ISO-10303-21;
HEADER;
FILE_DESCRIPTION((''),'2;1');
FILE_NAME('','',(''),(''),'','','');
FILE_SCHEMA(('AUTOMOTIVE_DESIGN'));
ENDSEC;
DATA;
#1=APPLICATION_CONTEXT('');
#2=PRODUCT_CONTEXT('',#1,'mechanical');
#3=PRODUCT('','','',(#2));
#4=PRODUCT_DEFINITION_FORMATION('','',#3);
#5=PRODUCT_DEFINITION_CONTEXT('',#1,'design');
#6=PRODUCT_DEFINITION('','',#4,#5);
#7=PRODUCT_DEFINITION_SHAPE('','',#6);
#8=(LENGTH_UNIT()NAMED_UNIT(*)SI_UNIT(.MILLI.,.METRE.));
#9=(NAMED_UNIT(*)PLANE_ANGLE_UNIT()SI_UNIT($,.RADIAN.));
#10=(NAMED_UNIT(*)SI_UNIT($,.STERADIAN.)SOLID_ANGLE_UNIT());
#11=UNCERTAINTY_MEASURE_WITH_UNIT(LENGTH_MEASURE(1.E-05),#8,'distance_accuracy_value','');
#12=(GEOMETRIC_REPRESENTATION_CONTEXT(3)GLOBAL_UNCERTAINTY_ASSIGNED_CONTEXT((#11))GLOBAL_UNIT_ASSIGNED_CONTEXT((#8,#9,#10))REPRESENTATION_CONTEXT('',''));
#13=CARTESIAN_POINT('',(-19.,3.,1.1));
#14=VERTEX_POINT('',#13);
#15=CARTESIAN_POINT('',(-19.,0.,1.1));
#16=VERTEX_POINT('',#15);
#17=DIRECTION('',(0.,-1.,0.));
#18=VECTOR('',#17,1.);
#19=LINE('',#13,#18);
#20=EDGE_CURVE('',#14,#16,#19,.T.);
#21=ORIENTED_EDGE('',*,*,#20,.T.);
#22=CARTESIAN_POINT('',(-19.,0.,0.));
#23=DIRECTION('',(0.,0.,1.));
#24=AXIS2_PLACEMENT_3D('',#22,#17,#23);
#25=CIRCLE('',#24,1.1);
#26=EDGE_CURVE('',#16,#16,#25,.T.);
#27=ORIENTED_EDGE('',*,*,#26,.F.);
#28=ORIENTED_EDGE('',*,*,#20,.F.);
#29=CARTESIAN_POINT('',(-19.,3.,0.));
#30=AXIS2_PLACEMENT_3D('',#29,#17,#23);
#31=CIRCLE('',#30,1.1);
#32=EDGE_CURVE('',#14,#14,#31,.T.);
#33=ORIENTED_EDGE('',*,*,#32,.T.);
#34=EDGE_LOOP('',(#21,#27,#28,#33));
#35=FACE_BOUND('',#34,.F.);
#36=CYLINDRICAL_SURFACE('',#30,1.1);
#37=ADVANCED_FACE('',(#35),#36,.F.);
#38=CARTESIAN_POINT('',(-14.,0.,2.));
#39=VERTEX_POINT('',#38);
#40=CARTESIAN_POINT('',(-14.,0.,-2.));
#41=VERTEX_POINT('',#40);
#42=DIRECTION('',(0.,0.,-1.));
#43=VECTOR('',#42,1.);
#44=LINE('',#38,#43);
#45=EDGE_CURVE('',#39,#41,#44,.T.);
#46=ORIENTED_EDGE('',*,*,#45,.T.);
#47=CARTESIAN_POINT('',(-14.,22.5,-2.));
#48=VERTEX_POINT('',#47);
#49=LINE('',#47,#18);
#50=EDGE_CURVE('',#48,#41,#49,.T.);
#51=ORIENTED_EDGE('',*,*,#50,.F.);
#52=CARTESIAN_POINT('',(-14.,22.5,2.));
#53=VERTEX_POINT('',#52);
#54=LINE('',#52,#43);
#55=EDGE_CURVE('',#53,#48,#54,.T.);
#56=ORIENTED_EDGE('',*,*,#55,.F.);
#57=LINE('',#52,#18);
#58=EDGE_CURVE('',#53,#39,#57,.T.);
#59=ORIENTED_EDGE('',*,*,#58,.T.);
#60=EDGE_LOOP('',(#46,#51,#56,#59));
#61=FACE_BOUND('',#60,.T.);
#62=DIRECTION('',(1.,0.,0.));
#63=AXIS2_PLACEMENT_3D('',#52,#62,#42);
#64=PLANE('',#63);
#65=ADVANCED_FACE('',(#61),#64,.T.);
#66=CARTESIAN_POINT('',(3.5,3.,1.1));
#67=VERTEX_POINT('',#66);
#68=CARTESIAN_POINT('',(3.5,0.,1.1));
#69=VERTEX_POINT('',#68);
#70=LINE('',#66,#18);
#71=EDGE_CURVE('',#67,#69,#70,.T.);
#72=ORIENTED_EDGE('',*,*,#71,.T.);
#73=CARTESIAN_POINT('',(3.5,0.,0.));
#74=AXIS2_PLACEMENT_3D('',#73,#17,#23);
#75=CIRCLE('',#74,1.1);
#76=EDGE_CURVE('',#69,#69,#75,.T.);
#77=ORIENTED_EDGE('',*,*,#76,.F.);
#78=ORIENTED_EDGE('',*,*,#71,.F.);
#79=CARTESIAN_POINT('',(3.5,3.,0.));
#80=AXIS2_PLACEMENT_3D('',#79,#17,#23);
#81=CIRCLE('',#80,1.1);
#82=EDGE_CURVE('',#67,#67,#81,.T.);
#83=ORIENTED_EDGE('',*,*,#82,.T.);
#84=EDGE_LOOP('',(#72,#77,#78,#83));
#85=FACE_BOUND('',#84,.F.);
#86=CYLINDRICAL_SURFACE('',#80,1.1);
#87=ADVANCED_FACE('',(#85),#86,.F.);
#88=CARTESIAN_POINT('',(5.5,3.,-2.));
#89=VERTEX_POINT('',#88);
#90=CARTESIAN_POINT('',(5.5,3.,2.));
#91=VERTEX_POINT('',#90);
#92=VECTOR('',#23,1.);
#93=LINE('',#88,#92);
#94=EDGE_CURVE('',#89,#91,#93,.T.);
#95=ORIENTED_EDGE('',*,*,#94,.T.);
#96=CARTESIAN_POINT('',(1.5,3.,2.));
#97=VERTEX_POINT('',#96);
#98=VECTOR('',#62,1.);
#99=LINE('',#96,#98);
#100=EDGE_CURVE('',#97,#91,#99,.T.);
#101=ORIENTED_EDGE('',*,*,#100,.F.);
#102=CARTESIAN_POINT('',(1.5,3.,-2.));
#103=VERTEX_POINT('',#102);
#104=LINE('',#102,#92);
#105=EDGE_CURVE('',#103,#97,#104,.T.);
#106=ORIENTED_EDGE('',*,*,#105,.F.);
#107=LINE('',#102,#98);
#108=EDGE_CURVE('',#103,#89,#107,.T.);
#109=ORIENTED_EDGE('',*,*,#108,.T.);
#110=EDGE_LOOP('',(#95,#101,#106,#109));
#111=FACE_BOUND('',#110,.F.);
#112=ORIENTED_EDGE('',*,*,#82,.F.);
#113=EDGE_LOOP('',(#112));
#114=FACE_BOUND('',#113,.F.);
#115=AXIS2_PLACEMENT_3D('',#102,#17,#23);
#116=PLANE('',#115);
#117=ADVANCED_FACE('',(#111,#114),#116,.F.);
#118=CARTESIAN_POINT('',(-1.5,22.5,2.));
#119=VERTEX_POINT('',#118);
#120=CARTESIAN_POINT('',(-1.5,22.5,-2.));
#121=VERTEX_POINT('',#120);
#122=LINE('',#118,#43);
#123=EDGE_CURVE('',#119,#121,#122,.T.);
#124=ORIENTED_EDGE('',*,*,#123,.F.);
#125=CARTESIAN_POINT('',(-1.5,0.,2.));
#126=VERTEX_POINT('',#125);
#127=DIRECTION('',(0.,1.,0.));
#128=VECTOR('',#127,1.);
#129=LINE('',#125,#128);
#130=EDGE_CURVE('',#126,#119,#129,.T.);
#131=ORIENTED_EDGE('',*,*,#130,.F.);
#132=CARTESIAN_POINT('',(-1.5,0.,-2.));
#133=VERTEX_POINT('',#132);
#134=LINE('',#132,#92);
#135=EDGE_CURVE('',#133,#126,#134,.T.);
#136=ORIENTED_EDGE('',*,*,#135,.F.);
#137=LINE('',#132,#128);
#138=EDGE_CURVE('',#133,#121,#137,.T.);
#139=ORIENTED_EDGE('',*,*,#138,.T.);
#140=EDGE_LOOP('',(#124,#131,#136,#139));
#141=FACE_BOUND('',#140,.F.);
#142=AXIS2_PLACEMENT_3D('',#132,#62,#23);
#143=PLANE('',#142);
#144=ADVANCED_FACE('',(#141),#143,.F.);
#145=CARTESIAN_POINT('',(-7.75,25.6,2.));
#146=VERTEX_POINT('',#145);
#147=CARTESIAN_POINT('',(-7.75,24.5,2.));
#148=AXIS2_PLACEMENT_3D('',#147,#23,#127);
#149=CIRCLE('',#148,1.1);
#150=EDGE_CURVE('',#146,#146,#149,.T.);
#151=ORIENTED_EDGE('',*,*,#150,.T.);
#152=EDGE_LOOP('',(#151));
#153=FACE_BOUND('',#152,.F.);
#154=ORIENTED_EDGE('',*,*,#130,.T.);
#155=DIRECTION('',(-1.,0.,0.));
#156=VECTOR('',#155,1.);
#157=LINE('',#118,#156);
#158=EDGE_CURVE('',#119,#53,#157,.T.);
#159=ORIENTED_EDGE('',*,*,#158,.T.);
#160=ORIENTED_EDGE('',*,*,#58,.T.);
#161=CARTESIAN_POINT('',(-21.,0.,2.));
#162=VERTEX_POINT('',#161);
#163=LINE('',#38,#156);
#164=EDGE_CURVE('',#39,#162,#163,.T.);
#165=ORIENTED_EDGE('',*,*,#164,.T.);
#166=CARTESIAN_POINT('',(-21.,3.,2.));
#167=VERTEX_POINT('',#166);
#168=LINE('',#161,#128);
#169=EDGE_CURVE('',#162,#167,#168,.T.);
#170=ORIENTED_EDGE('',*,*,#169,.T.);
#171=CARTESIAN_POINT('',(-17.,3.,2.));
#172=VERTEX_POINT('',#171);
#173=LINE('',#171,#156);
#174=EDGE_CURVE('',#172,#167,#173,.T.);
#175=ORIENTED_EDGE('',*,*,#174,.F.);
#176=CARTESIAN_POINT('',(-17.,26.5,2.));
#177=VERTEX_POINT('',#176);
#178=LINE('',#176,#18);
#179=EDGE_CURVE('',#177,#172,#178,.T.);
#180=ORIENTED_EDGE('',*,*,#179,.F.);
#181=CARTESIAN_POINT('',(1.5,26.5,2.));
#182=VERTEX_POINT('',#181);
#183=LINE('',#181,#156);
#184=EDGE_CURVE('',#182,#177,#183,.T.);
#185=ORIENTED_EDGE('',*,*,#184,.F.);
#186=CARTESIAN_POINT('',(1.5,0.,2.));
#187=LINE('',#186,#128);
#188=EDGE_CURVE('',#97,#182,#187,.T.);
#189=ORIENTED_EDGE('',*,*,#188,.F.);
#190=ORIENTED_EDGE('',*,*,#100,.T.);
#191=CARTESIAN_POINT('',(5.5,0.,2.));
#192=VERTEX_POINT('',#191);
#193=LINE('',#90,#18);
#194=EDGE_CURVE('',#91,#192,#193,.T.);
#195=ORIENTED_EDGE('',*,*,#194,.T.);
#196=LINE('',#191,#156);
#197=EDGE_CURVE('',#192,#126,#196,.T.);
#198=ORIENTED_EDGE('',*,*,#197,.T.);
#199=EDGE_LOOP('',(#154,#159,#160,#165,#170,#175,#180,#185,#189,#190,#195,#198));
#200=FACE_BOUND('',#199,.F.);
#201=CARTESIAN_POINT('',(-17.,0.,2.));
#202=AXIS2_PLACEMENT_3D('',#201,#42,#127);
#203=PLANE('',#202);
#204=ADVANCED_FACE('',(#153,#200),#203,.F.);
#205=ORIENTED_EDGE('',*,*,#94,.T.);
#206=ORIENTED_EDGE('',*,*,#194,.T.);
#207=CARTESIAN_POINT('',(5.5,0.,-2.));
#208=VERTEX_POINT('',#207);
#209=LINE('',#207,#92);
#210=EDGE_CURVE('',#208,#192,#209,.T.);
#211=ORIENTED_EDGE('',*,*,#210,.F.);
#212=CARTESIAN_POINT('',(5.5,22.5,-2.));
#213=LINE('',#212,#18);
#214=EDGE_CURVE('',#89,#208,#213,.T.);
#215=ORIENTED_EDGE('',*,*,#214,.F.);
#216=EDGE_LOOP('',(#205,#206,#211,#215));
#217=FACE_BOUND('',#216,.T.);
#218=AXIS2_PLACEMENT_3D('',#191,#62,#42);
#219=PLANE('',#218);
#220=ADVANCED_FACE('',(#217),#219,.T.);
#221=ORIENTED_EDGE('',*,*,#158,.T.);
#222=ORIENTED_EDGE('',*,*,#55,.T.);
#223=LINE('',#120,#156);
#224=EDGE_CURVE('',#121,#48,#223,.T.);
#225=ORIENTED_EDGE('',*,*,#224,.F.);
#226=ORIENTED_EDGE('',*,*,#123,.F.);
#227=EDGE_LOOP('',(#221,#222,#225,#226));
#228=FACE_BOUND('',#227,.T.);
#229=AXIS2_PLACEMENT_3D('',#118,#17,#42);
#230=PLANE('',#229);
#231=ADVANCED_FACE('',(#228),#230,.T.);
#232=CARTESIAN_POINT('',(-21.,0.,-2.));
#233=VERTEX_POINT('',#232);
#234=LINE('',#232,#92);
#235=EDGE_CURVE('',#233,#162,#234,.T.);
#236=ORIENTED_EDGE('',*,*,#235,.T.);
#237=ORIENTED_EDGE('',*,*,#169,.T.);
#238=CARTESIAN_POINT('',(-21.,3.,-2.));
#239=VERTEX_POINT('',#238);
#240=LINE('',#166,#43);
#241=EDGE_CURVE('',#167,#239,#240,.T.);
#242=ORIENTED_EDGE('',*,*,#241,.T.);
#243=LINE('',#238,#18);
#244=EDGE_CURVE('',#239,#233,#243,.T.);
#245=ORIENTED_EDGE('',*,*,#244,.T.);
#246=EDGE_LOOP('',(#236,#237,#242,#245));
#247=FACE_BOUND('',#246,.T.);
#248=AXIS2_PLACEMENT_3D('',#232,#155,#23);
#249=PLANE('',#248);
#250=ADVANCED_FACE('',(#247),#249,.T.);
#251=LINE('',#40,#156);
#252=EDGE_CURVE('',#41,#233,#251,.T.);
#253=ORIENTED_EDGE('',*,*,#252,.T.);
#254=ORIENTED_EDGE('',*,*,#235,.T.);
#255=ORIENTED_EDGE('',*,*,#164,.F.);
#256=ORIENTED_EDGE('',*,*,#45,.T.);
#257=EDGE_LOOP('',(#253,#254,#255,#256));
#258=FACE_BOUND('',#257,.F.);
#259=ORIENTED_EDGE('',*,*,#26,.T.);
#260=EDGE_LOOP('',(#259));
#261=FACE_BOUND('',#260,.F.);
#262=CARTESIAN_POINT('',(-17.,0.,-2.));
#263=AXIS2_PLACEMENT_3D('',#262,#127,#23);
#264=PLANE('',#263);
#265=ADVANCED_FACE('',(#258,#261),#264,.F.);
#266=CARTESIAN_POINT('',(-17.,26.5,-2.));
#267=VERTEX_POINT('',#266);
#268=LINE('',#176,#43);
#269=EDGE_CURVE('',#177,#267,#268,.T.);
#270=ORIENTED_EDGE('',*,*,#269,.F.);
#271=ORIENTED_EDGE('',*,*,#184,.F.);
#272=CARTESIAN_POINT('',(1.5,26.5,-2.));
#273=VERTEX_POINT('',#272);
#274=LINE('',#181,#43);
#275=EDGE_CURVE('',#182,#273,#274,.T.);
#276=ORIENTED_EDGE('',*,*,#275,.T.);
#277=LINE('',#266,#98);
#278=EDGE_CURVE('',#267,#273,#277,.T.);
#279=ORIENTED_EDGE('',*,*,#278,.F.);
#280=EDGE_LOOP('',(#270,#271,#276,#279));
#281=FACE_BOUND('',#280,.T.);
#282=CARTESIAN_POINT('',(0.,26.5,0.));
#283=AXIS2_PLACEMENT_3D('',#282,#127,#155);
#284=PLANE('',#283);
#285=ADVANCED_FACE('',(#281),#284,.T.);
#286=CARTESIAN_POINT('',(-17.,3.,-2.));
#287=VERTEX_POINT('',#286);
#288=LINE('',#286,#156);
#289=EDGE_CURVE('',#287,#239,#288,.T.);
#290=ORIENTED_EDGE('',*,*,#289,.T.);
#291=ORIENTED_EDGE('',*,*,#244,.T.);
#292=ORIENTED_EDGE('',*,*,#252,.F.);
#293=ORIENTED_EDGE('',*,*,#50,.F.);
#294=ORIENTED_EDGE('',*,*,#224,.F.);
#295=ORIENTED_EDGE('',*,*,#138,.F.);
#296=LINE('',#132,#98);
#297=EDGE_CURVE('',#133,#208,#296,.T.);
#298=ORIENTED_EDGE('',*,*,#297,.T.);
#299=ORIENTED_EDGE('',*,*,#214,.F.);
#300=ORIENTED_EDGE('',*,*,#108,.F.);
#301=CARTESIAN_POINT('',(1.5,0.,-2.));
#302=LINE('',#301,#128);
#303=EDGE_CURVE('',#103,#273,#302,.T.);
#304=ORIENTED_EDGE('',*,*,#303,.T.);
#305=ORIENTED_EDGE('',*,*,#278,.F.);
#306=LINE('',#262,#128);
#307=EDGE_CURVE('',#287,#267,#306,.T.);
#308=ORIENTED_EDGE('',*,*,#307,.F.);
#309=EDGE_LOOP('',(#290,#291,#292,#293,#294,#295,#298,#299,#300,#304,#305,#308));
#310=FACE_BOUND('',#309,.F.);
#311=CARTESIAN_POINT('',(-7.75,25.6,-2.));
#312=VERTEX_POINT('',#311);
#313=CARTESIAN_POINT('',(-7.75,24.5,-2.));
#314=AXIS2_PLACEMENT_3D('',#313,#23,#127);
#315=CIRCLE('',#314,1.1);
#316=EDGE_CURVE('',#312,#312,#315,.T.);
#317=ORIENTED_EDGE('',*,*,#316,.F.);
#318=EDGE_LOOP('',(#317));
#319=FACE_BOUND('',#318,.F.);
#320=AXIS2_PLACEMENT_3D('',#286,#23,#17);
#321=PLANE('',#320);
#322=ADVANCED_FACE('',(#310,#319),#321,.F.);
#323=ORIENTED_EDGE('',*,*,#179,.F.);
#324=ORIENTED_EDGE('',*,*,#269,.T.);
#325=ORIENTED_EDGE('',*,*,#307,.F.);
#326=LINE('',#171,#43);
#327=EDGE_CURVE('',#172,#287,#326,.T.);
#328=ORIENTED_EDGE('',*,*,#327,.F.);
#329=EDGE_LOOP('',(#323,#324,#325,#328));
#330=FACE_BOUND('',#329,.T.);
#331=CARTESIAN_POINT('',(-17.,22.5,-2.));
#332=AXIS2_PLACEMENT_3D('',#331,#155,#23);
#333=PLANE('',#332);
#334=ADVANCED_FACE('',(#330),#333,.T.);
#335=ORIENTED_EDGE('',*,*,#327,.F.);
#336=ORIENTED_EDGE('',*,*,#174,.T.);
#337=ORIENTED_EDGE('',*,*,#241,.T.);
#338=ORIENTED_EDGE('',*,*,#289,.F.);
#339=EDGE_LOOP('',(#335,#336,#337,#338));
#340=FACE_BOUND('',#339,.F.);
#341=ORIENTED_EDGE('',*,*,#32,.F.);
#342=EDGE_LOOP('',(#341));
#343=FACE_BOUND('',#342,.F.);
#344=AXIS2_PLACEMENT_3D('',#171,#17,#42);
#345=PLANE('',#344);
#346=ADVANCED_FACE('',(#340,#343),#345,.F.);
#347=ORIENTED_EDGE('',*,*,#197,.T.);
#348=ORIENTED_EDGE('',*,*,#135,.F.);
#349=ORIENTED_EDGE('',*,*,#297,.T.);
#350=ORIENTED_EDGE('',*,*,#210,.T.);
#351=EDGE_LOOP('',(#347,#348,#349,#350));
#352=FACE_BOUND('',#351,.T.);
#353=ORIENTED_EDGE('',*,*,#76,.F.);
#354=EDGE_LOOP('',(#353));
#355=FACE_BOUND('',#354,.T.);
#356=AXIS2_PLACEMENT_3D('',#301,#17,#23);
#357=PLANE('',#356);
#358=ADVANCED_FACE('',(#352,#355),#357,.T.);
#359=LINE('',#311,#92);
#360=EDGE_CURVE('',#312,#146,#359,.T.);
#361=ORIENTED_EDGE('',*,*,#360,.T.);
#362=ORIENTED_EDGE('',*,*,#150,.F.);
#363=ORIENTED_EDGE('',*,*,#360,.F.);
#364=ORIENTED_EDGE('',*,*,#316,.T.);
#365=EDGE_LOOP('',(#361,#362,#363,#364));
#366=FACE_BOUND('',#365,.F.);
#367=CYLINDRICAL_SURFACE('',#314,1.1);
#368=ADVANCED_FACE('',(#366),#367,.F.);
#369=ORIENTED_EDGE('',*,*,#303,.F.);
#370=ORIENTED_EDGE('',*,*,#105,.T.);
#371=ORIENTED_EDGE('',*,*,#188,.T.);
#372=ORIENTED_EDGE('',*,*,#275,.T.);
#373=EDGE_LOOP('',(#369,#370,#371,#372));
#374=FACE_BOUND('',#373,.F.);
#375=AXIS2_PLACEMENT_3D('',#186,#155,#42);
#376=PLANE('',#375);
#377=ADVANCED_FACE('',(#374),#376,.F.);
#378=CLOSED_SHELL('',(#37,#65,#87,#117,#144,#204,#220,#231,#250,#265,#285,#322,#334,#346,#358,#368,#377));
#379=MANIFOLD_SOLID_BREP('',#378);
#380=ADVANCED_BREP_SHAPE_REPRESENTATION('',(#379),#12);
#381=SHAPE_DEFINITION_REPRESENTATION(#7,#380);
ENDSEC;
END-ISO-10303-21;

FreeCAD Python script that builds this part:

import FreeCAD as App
import Part
import Sketcher

V = App.Vector


def add_polygon(sketch, points):
    """Adds a closed chain of lines whose ends are joined by coincident constraints."""
    first, n = sketch.GeometryCount, len(points)
    for a, b in zip(points, points[1:] + points[:1]):
        sketch.addGeometry(Part.LineSegment(App.Vector(*a, 0), App.Vector(*b, 0)), False)
    for i in range(n):
        sketch.addConstraint(Sketcher.Constraint("Coincident", first + i, 2, first + (i + 1) % n, 1))

doc = App.newDocument("Part")
params = doc.addObject("Spreadsheet::Sheet", "Params")
for row, (alias, value) in enumerate([
    ("sketch1_width", "3 mm"),
    ("sketch1_height", "4 mm"),
    ("pad1_length", "26.5 mm"),
    ("sketch2_width", "4 mm"),
    ("pad2_length", "15.5 mm"),
    ("sketch3_width", "3 mm"),
    ("sketch3_height", "4 mm"),
    ("pad3_length", "22.5 mm"),
    ("sketch4_width", "3 mm"),
    ("sketch4_height", "4 mm"),
    ("pad4_length", "4 mm"),
    ("sketch5_width", "3 mm"),
    ("sketch5_height", "4 mm"),
    ("pad5_length", "4 mm"),
    ("sketch6_diameter", "2.2 mm"),
    ("hole_diameter", "2.2 mm"),
    ("sketch7_diameter", "2.2 mm"),
    ("hole2_diameter", "2.2 mm"),
], start=1):
    params.set(f"A{row}", alias)
    params.set(f"B{row}", "=" + value)
    params.setAlias(f"B{row}", alias)

body = doc.addObject("PartDesign::Body", "Body")

# Sketch on XZ plane
sketch1 = body.newObject("Sketcher::SketchObject", "Sketch")
sketch1.AttachmentSupport = (doc.getObject("XZ_Plane"), [""])
sketch1.MapMode = "FlatFace"
add_polygon(sketch1, [(-1.5, -2), (-1.5, 2), (1.5, 2), (1.5, -2)])  # lines 0-3
sketch1.addConstraint(Sketcher.Constraint("Vertical", 0))
sketch1.addConstraint(Sketcher.Constraint("Horizontal", 1))
sketch1.addConstraint(Sketcher.Constraint("Vertical", 2))
sketch1.addConstraint(Sketcher.Constraint("Horizontal", 3))
sketch1.addConstraint(Sketcher.Constraint("Symmetric", 0, 2, 2, 2, -1, 1))
sketch1.addConstraint(Sketcher.Constraint("DistanceX", 1, 1, 1, 2, 3.0))
sketch1.addConstraint(Sketcher.Constraint("DistanceY", 0, 1, 0, 2, 4.0))
sketch1.setExpression("Constraints[9]", "Params.sketch1_width")
sketch1.setExpression("Constraints[10]", "Params.sketch1_height")
pad1 = body.newObject("PartDesign::Pad", "Pad")
pad1.Profile = sketch1
pad1.setExpression("Length", "Params.pad1_length")
pad1.Reversed = True

# Sketch on YZ plane
sketch2 = body.newObject("Sketcher::SketchObject", "Sketch001")
sketch2.AttachmentSupport = (doc.getObject("YZ_Plane"), [""])
sketch2.MapMode = "FlatFace"
sketch2.AttachmentOffset = App.Placement(V(0, 0, -1.5), App.Rotation())
add_polygon(sketch2, [(22.5, 2), (26.5, 2), (26.5, -2), (22.5, -2)])  # lines 0-3
sketch2.addConstraint(Sketcher.Constraint("Horizontal", 0))
sketch2.addConstraint(Sketcher.Constraint("Vertical", 1))
sketch2.addConstraint(Sketcher.Constraint("Horizontal", 2))
sketch2.addConstraint(Sketcher.Constraint("Vertical", 3))
sketch2.addConstraint(Sketcher.Constraint("Equal", 2, 1))
sketch2.addConstraint(Sketcher.Constraint("DistanceX", 0, 1, 0, 2, 4.0))
sketch2.addConstraint(Sketcher.Constraint("DistanceY", -1, 1, 0, 2, 2.0))
sketch2.addConstraint(Sketcher.Constraint("DistanceX", -1, 1, 0, 2, 26.5))
sketch2.setExpression("Constraints[9]", "Params.sketch2_width")
pad2 = body.newObject("PartDesign::Pad", "Pad001")
pad2.Profile = sketch2
pad2.setExpression("Length", "Params.pad2_length")
pad2.Reversed = True

# Sketch on XZ plane
sketch3 = body.newObject("Sketcher::SketchObject", "Sketch002")
sketch3.AttachmentSupport = (doc.getObject("XZ_Plane"), [""])
sketch3.MapMode = "FlatFace"
sketch3.AttachmentOffset = App.Placement(V(0, 0, -22.5), App.Rotation())
add_polygon(sketch3, [(-14, -2), (-14, 2), (-17, 2), (-17, -2)])  # lines 0-3
sketch3.addConstraint(Sketcher.Constraint("Vertical", 0))
sketch3.addConstraint(Sketcher.Constraint("Horizontal", 1))
sketch3.addConstraint(Sketcher.Constraint("Vertical", 2))
sketch3.addConstraint(Sketcher.Constraint("Horizontal", 3))
sketch3.addConstraint(Sketcher.Constraint("DistanceX", 1, 2, 1, 1, 3.0))
sketch3.addConstraint(Sketcher.Constraint("DistanceY", 0, 1, 0, 2, 4.0))
sketch3.addConstraint(Sketcher.Constraint("DistanceX", 0, 2, -1, 1, 14.0))
sketch3.addConstraint(Sketcher.Constraint("DistanceY", -1, 1, 0, 2, 2.0))
sketch3.setExpression("Constraints[8]", "Params.sketch3_width")
sketch3.setExpression("Constraints[9]", "Params.sketch3_height")
pad3 = body.newObject("PartDesign::Pad", "Pad002")
pad3.Profile = sketch3
pad3.setExpression("Length", "Params.pad3_length")

# Sketch on YZ plane
sketch4 = body.newObject("Sketcher::SketchObject", "Sketch003")
sketch4.AttachmentSupport = (doc.getObject("YZ_Plane"), [""])
sketch4.MapMode = "FlatFace"
sketch4.AttachmentOffset = App.Placement(V(0, 0, 1.5), App.Rotation())
add_polygon(sketch4, [(0, 2), (0, -2), (3, -2), (3, 2)])  # lines 0-3
sketch4.addConstraint(Sketcher.Constraint("Vertical", 0))
sketch4.addConstraint(Sketcher.Constraint("Horizontal", 1))
sketch4.addConstraint(Sketcher.Constraint("Vertical", 2))
sketch4.addConstraint(Sketcher.Constraint("Horizontal", 3))
sketch4.addConstraint(Sketcher.Constraint("Symmetric", 0, 2, 3, 2, -1, 1))
sketch4.addConstraint(Sketcher.Constraint("DistanceX", 1, 1, 1, 2, 3.0))
sketch4.addConstraint(Sketcher.Constraint("DistanceY", 0, 2, 0, 1, 4.0))
sketch4.setExpression("Constraints[9]", "Params.sketch4_width")
sketch4.setExpression("Constraints[10]", "Params.sketch4_height")
pad4 = body.newObject("PartDesign::Pad", "Pad003")
pad4.Profile = sketch4
pad4.setExpression("Length", "Params.pad4_length")

# Sketch on YZ plane
sketch5 = body.newObject("Sketcher::SketchObject", "Sketch004")
sketch5.AttachmentSupport = (doc.getObject("YZ_Plane"), [""])
sketch5.MapMode = "FlatFace"
sketch5.AttachmentOffset = App.Placement(V(0, 0, -17), App.Rotation())
add_polygon(sketch5, [(3, -2), (0, -2), (0, 2), (3, 2)])  # lines 0-3
sketch5.addConstraint(Sketcher.Constraint("Horizontal", 0))
sketch5.addConstraint(Sketcher.Constraint("Vertical", 1))
sketch5.addConstraint(Sketcher.Constraint("Horizontal", 2))
sketch5.addConstraint(Sketcher.Constraint("Vertical", 3))
sketch5.addConstraint(Sketcher.Constraint("Symmetric", 0, 2, 1, 2, -1, 1))
sketch5.addConstraint(Sketcher.Constraint("DistanceX", 0, 2, 0, 1, 3.0))
sketch5.addConstraint(Sketcher.Constraint("DistanceY", 1, 1, 1, 2, 4.0))
sketch5.setExpression("Constraints[9]", "Params.sketch5_width")
sketch5.setExpression("Constraints[10]", "Params.sketch5_height")
pad5 = body.newObject("PartDesign::Pad", "Pad004")
pad5.Profile = sketch5
pad5.setExpression("Length", "Params.pad5_length")
pad5.Reversed = True

# Sketch on XZ plane
sketch6 = body.newObject("Sketcher::SketchObject", "Sketch005")
sketch6.AttachmentSupport = (doc.getObject("XZ_Plane"), [""])
sketch6.MapMode = "FlatFace"
sketch6.AttachmentOffset = App.Placement(V(0, 0, -3), App.Rotation())
sketch6.addGeometry(Part.Circle(V(3.5, 0, 0), V(0, 0, 1), 1.1), False)
sketch6.addGeometry(Part.Circle(V(-19, 0, 0), V(0, 0, 1), 1.1), False)
sketch6.addConstraint(Sketcher.Constraint("Equal", 0, 1))
sketch6.addConstraint(Sketcher.Constraint("PointOnObject", 0, 3, -1))
sketch6.addConstraint(Sketcher.Constraint("PointOnObject", 1, 3, -1))
sketch6.addConstraint(Sketcher.Constraint("Diameter", 0, 2.2))
sketch6.addConstraint(Sketcher.Constraint("DistanceX", 1, 3, -1, 1, 19.0))
sketch6.addConstraint(Sketcher.Constraint("DistanceX", -1, 1, 0, 3, 3.5))
sketch6.setExpression("Constraints[3]", "Params.sketch6_diameter")
doc.recompute()
hole = body.newObject("PartDesign::Hole", "Hole")
hole.Profile = sketch6
hole.ThreadType = "None"
hole.setExpression("Diameter", "Params.hole_diameter")
hole.DepthType = "ThroughAll"
hole.Reversed = True

# Sketch on XY plane
sketch7 = body.newObject("Sketcher::SketchObject", "Sketch006")
sketch7.AttachmentSupport = (doc.getObject("XY_Plane"), [""])
sketch7.MapMode = "FlatFace"
sketch7.AttachmentOffset = App.Placement(V(0, 0, -2), App.Rotation())
sketch7.addGeometry(Part.Circle(V(-7.8, 24.5, 0), V(0, 0, 1), 1.1), False)
sketch7.addConstraint(Sketcher.Constraint("Diameter", 0, 2.2))
sketch7.addConstraint(Sketcher.Constraint("DistanceY", -1, 1, 0, 3, 24.5))
sketch7.addConstraint(Sketcher.Constraint("DistanceX", 0, 3, -1, 1, 7.75))
sketch7.setExpression("Constraints[0]", "Params.sketch7_diameter")
doc.recompute()
hole2 = body.newObject("PartDesign::Hole", "Hole001")
hole2.Profile = sketch7
hole2.ThreadType = "None"
hole2.setExpression("Diameter", "Params.hole2_diameter")
hole2.DepthType = "ThroughAll"
hole2.Reversed = True

doc.recompute()
